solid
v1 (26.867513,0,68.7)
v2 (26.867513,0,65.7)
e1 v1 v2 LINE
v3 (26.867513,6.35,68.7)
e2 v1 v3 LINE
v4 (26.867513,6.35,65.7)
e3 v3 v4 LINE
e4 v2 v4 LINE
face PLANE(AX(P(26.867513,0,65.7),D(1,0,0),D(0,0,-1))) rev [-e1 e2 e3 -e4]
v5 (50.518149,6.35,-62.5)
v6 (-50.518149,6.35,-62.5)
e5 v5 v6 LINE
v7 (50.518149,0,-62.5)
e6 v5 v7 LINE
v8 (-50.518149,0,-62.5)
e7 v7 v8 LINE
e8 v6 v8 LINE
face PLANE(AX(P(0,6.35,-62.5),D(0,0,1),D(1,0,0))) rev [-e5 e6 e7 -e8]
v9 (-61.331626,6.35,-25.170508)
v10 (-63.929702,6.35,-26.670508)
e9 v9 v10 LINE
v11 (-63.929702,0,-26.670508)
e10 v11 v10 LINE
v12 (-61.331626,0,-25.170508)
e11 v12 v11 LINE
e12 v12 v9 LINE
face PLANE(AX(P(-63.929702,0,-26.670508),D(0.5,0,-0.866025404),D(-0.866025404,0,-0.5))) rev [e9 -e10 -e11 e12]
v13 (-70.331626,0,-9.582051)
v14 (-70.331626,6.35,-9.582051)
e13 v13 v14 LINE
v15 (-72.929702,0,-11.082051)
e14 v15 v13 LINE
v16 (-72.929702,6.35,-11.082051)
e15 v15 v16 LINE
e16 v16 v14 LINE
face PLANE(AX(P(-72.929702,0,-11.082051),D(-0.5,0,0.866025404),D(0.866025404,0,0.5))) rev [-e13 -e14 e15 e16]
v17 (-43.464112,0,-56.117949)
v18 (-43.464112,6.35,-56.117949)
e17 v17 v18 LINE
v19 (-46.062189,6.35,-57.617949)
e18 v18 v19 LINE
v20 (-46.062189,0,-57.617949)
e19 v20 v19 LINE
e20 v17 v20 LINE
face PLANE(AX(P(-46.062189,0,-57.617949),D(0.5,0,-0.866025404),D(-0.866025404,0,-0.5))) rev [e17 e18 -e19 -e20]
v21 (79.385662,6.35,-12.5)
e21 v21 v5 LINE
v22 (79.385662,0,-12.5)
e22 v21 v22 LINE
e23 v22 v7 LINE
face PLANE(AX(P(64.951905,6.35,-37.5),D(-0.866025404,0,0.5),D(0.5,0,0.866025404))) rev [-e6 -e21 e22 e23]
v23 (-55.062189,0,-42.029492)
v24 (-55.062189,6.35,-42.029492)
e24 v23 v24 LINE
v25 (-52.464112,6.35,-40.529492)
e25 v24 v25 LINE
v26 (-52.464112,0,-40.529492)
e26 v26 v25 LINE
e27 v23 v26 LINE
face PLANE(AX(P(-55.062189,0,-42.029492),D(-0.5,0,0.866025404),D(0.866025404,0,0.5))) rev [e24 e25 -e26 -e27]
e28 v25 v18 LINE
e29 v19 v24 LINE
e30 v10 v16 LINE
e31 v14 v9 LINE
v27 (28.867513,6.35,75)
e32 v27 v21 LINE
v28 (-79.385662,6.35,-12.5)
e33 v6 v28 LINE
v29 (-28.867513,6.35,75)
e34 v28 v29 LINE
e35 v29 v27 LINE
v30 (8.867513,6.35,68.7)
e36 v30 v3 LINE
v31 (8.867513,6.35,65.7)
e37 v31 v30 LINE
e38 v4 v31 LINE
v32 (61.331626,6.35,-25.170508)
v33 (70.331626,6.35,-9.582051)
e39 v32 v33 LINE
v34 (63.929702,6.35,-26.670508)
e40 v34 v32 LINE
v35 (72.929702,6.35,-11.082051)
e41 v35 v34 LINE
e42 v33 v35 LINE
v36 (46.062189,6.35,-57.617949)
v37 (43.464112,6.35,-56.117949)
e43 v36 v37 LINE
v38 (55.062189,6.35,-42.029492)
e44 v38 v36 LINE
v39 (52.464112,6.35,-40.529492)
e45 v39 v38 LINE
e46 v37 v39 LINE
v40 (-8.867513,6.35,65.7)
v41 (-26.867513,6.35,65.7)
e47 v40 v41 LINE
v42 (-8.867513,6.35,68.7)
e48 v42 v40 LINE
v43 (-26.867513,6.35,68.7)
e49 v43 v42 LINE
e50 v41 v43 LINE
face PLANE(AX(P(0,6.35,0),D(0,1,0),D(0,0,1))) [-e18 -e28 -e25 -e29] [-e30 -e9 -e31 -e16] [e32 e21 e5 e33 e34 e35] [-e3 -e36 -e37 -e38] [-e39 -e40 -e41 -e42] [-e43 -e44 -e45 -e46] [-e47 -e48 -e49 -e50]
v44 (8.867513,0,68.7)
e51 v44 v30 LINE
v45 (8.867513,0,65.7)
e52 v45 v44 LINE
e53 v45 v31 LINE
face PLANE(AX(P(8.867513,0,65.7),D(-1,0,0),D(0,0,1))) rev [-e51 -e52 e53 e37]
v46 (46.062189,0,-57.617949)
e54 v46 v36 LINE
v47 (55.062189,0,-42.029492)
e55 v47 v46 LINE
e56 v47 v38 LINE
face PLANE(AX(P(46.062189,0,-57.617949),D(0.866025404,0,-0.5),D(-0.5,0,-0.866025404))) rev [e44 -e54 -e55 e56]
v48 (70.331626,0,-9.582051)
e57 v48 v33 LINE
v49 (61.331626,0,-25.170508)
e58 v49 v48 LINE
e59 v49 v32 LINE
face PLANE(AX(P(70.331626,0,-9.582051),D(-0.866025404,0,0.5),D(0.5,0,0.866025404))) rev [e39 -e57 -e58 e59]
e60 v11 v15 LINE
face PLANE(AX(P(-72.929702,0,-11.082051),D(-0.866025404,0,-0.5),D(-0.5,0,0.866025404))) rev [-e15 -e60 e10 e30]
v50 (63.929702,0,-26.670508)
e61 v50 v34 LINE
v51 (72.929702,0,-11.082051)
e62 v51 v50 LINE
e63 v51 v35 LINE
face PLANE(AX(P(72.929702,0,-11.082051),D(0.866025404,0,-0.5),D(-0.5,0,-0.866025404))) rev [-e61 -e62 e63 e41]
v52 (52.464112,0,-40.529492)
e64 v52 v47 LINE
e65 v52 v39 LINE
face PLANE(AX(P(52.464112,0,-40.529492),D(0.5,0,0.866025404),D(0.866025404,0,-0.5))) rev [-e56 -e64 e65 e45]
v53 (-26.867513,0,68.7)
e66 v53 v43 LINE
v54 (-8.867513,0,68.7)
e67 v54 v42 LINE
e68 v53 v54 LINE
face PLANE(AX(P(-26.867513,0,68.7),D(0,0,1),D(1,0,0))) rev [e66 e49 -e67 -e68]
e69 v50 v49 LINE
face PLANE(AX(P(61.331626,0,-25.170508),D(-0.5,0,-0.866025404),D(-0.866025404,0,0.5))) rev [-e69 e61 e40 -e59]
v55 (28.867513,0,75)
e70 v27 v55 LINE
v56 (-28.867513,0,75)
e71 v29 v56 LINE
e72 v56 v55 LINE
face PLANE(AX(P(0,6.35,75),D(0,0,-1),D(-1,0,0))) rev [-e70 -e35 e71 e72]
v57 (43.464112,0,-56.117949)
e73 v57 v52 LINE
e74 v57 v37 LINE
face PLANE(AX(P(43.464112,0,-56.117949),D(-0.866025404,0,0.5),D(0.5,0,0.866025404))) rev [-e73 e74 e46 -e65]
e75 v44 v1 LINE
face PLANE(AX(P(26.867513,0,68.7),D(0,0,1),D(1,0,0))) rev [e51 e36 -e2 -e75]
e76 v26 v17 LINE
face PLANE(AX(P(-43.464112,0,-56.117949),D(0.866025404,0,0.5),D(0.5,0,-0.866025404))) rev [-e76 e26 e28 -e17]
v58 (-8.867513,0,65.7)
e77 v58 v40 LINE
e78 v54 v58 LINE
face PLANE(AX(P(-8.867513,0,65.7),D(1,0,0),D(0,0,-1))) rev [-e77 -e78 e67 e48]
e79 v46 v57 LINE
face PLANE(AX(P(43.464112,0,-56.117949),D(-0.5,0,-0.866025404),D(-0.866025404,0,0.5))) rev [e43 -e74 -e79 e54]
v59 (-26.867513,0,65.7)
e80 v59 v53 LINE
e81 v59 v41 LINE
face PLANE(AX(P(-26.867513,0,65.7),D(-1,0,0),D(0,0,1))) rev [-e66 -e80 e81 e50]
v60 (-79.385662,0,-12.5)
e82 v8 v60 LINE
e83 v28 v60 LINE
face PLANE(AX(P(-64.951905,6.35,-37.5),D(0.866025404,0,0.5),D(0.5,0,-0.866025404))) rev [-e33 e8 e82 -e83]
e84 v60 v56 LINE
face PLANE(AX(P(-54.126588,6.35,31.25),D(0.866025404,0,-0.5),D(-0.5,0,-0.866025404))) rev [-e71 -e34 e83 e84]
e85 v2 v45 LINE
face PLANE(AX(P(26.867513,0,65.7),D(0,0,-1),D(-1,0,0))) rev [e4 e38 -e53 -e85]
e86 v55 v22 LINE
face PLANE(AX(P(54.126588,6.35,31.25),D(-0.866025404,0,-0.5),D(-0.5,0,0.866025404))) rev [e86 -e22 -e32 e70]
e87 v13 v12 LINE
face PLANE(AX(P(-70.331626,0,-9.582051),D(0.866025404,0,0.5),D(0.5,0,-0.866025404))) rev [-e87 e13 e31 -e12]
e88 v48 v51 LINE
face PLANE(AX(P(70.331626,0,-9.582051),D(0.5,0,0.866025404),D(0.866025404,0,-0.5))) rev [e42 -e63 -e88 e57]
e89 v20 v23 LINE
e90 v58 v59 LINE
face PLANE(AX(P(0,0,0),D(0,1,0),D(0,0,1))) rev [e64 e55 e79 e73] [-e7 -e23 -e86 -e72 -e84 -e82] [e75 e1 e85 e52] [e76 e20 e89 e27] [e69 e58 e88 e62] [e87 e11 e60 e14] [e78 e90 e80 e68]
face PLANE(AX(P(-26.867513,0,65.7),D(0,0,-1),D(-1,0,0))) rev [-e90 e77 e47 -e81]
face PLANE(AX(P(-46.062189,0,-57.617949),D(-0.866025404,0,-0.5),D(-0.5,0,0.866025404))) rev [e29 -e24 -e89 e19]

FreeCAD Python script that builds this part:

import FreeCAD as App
import Part
import Sketcher
from FreeCAD import Vector
Q = App.Units.Quantity


def add_polygon(sketch, points):
    """Adds a closed chain of lines whose ends are joined by coincident constraints."""
    first, n = sketch.GeometryCount, len(points)
    for a, b in zip(points, points[1:] + points[:1]):
        sketch.addGeometry(Part.LineSegment(App.Vector(*a, 0), App.Vector(*b, 0)), False)
    for i in range(n):
        sketch.addConstraint(Sketcher.Constraint("Coincident", first + i, 2, first + (i + 1) % n, 1))

doc = App.newDocument("Part")
body = doc.addObject("PartDesign::Body", "Body")

# Sketch on XZ plane
sketch1 = body.newObject("Sketcher::SketchObject", "Sketch")
sketch1.AttachmentSupport = (doc.getObject("XZ_Plane"), [""])
sketch1.MapMode = "FlatFace"
add_polygon(sketch1, [(50.518149, -62.5), (-50.518149, -62.5), (-79.385662, -12.5), (-28.867513, 75), (28.867513, 75), (79.385662, -12.5)])  # lines 0-5
sketch1.addConstraint([
    Sketcher.Constraint("Horizontal", 0),
    Sketcher.Constraint("Horizontal", 3),
    Sketcher.Constraint("Symmetric", 1, 2, 4, 2, -2),
    Sketcher.Constraint("Parallel", 1, 4),
    Sketcher.Constraint("Parallel", 2, 5),
    Sketcher.Constraint("Equal", 2, 4),
    Sketcher.Constraint("Angle", 1, Q("120 deg")),
    Sketcher.Constraint("DistanceY", -1, 1, 2, 2, 75.0),
    Sketcher.Constraint("DistanceY", 0, 2, 1, 2, 50.0),
    Sketcher.Constraint("DistanceY", 0, 2, -1, 1, 62.5),
    Sketcher.Constraint("DistanceX", 0, 2, 0, 1, 101.036297),
])
pad1 = body.newObject("PartDesign::Pad", "Pad")
pad1.Profile = sketch1
pad1.Length = 6.35
pad1.Reversed = True

# Sketch on XZ plane
sketch2 = body.newObject("Sketcher::SketchObject", "Sketch001")
sketch2.AttachmentSupport = (doc.getObject("XZ_Plane"), [""])
sketch2.MapMode = "FlatFace"
sketch2.AttachmentOffset = App.Placement(Vector(0, 0, -6.35), App.Rotation())
add_polygon(sketch2, [(-26.867513, 65.7), (-26.867513, 68.7), (-8.867513, 68.7), (-8.867513, 65.7)])  # lines 0-3
add_polygon(sketch2, [(8.867513, 65.7), (8.867513, 68.7), (26.867513, 68.7), (26.867513, 65.7)])  # lines 4-7
add_polygon(sketch2, [(-43.464112, -56.117949), (-46.062189, -57.617949), (-55.062189, -42.029492), (-52.464112, -40.529492)])  # lines 8-11
add_polygon(sketch2, [(-70.331626, -9.582051), (-61.331626, -25.170508), (-63.929702, -26.670508), (-72.929702, -11.082051)])  # lines 12-15
add_polygon(sketch2, [(72.929702, -11.082051), (63.929702, -26.670508), (61.331626, -25.170508), (70.331626, -9.582051)])  # lines 16-19
add_polygon(sketch2, [(46.062189, -57.617949), (43.464112, -56.117949), (52.464112, -40.529492), (55.062189, -42.029492)])  # lines 20-23
sketch2.addConstraint([
    Sketcher.Constraint("Vertical", 0),
    Sketcher.Constraint("Horizontal", 1),
    Sketcher.Constraint("Vertical", 2),
    Sketcher.Constraint("Horizontal", 3),
    Sketcher.Constraint("Vertical", 4),
    Sketcher.Constraint("Horizontal", 5),
    Sketcher.Constraint("Vertical", 6),
    Sketcher.Constraint("Horizontal", 7),
    Sketcher.Constraint("Symmetric", 1, 2, 4, 2, -2),
    Sketcher.Constraint("Symmetric", 3, 2, 6, 2, -2),
    Sketcher.Constraint("Symmetric", 13, 2, 16, 2, -2),
    Sketcher.Constraint("Symmetric", 12, 2, 17, 2, -2),
    Sketcher.Constraint("Symmetric", 15, 2, 18, 2, -2),
    Sketcher.Constraint("Symmetric", 14, 2, 19, 2, -2),
    Sketcher.Constraint("Symmetric", 11, 2, 20, 2, -2),
    Sketcher.Constraint("Symmetric", 10, 2, 21, 2, -2),
    Sketcher.Constraint("Symmetric", 9, 2, 22, 2, -2),
    Sketcher.Constraint("Symmetric", 8, 2, 23, 2, -2),
    Sketcher.Constraint("Perpendicular", 8, 9),
    Sketcher.Constraint("Perpendicular", 9, 10),
    Sketcher.Constraint("Perpendicular", 10, 11),
    Sketcher.Constraint("Parallel", 11, 12),
    Sketcher.Constraint("Perpendicular", 12, 13),
    Sketcher.Constraint("Perpendicular", 13, 14),
    Sketcher.Constraint("Perpendicular", 14, 15),
    Sketcher.Constraint("Equal", 11, 12),
    Sketcher.Constraint("Equal", 10, 13),
    Sketcher.Constraint("DistanceX", 1, 1, 1, 2, 18.0),
    Sketcher.Constraint("DistanceY", 0, 1, 0, 2, 3.0),
    Sketcher.Constraint("Angle", 8, Q("-150 deg")),
    Sketcher.Constraint("Distance", 8, 3.0),
    Sketcher.Constraint("Distance", 9, 18.0),
    Sketcher.Constraint("DistanceY", -1, 1, 0, 2, 68.7),
    Sketcher.Constraint("DistanceX", 13, 2, -1, 1, 63.929702),
    Sketcher.Constraint("DistanceX", 8, 2, 7, 2, 54.929702),
    Sketcher.Constraint("DistanceX", 10, 2, 3, 2, 25.596599),
    Sketcher.Constraint("DistanceY", 8, 2, 14, 2, 46.535898),
    Sketcher.Constraint("DistanceY", 8, 2, -1, 1, 57.617949),
])
pocket1 = body.newObject("PartDesign::Pocket", "Pocket")
pocket1.Profile = sketch2
pocket1.Type = "ThroughAll"
pocket1.Reversed = True

doc.recompute()
